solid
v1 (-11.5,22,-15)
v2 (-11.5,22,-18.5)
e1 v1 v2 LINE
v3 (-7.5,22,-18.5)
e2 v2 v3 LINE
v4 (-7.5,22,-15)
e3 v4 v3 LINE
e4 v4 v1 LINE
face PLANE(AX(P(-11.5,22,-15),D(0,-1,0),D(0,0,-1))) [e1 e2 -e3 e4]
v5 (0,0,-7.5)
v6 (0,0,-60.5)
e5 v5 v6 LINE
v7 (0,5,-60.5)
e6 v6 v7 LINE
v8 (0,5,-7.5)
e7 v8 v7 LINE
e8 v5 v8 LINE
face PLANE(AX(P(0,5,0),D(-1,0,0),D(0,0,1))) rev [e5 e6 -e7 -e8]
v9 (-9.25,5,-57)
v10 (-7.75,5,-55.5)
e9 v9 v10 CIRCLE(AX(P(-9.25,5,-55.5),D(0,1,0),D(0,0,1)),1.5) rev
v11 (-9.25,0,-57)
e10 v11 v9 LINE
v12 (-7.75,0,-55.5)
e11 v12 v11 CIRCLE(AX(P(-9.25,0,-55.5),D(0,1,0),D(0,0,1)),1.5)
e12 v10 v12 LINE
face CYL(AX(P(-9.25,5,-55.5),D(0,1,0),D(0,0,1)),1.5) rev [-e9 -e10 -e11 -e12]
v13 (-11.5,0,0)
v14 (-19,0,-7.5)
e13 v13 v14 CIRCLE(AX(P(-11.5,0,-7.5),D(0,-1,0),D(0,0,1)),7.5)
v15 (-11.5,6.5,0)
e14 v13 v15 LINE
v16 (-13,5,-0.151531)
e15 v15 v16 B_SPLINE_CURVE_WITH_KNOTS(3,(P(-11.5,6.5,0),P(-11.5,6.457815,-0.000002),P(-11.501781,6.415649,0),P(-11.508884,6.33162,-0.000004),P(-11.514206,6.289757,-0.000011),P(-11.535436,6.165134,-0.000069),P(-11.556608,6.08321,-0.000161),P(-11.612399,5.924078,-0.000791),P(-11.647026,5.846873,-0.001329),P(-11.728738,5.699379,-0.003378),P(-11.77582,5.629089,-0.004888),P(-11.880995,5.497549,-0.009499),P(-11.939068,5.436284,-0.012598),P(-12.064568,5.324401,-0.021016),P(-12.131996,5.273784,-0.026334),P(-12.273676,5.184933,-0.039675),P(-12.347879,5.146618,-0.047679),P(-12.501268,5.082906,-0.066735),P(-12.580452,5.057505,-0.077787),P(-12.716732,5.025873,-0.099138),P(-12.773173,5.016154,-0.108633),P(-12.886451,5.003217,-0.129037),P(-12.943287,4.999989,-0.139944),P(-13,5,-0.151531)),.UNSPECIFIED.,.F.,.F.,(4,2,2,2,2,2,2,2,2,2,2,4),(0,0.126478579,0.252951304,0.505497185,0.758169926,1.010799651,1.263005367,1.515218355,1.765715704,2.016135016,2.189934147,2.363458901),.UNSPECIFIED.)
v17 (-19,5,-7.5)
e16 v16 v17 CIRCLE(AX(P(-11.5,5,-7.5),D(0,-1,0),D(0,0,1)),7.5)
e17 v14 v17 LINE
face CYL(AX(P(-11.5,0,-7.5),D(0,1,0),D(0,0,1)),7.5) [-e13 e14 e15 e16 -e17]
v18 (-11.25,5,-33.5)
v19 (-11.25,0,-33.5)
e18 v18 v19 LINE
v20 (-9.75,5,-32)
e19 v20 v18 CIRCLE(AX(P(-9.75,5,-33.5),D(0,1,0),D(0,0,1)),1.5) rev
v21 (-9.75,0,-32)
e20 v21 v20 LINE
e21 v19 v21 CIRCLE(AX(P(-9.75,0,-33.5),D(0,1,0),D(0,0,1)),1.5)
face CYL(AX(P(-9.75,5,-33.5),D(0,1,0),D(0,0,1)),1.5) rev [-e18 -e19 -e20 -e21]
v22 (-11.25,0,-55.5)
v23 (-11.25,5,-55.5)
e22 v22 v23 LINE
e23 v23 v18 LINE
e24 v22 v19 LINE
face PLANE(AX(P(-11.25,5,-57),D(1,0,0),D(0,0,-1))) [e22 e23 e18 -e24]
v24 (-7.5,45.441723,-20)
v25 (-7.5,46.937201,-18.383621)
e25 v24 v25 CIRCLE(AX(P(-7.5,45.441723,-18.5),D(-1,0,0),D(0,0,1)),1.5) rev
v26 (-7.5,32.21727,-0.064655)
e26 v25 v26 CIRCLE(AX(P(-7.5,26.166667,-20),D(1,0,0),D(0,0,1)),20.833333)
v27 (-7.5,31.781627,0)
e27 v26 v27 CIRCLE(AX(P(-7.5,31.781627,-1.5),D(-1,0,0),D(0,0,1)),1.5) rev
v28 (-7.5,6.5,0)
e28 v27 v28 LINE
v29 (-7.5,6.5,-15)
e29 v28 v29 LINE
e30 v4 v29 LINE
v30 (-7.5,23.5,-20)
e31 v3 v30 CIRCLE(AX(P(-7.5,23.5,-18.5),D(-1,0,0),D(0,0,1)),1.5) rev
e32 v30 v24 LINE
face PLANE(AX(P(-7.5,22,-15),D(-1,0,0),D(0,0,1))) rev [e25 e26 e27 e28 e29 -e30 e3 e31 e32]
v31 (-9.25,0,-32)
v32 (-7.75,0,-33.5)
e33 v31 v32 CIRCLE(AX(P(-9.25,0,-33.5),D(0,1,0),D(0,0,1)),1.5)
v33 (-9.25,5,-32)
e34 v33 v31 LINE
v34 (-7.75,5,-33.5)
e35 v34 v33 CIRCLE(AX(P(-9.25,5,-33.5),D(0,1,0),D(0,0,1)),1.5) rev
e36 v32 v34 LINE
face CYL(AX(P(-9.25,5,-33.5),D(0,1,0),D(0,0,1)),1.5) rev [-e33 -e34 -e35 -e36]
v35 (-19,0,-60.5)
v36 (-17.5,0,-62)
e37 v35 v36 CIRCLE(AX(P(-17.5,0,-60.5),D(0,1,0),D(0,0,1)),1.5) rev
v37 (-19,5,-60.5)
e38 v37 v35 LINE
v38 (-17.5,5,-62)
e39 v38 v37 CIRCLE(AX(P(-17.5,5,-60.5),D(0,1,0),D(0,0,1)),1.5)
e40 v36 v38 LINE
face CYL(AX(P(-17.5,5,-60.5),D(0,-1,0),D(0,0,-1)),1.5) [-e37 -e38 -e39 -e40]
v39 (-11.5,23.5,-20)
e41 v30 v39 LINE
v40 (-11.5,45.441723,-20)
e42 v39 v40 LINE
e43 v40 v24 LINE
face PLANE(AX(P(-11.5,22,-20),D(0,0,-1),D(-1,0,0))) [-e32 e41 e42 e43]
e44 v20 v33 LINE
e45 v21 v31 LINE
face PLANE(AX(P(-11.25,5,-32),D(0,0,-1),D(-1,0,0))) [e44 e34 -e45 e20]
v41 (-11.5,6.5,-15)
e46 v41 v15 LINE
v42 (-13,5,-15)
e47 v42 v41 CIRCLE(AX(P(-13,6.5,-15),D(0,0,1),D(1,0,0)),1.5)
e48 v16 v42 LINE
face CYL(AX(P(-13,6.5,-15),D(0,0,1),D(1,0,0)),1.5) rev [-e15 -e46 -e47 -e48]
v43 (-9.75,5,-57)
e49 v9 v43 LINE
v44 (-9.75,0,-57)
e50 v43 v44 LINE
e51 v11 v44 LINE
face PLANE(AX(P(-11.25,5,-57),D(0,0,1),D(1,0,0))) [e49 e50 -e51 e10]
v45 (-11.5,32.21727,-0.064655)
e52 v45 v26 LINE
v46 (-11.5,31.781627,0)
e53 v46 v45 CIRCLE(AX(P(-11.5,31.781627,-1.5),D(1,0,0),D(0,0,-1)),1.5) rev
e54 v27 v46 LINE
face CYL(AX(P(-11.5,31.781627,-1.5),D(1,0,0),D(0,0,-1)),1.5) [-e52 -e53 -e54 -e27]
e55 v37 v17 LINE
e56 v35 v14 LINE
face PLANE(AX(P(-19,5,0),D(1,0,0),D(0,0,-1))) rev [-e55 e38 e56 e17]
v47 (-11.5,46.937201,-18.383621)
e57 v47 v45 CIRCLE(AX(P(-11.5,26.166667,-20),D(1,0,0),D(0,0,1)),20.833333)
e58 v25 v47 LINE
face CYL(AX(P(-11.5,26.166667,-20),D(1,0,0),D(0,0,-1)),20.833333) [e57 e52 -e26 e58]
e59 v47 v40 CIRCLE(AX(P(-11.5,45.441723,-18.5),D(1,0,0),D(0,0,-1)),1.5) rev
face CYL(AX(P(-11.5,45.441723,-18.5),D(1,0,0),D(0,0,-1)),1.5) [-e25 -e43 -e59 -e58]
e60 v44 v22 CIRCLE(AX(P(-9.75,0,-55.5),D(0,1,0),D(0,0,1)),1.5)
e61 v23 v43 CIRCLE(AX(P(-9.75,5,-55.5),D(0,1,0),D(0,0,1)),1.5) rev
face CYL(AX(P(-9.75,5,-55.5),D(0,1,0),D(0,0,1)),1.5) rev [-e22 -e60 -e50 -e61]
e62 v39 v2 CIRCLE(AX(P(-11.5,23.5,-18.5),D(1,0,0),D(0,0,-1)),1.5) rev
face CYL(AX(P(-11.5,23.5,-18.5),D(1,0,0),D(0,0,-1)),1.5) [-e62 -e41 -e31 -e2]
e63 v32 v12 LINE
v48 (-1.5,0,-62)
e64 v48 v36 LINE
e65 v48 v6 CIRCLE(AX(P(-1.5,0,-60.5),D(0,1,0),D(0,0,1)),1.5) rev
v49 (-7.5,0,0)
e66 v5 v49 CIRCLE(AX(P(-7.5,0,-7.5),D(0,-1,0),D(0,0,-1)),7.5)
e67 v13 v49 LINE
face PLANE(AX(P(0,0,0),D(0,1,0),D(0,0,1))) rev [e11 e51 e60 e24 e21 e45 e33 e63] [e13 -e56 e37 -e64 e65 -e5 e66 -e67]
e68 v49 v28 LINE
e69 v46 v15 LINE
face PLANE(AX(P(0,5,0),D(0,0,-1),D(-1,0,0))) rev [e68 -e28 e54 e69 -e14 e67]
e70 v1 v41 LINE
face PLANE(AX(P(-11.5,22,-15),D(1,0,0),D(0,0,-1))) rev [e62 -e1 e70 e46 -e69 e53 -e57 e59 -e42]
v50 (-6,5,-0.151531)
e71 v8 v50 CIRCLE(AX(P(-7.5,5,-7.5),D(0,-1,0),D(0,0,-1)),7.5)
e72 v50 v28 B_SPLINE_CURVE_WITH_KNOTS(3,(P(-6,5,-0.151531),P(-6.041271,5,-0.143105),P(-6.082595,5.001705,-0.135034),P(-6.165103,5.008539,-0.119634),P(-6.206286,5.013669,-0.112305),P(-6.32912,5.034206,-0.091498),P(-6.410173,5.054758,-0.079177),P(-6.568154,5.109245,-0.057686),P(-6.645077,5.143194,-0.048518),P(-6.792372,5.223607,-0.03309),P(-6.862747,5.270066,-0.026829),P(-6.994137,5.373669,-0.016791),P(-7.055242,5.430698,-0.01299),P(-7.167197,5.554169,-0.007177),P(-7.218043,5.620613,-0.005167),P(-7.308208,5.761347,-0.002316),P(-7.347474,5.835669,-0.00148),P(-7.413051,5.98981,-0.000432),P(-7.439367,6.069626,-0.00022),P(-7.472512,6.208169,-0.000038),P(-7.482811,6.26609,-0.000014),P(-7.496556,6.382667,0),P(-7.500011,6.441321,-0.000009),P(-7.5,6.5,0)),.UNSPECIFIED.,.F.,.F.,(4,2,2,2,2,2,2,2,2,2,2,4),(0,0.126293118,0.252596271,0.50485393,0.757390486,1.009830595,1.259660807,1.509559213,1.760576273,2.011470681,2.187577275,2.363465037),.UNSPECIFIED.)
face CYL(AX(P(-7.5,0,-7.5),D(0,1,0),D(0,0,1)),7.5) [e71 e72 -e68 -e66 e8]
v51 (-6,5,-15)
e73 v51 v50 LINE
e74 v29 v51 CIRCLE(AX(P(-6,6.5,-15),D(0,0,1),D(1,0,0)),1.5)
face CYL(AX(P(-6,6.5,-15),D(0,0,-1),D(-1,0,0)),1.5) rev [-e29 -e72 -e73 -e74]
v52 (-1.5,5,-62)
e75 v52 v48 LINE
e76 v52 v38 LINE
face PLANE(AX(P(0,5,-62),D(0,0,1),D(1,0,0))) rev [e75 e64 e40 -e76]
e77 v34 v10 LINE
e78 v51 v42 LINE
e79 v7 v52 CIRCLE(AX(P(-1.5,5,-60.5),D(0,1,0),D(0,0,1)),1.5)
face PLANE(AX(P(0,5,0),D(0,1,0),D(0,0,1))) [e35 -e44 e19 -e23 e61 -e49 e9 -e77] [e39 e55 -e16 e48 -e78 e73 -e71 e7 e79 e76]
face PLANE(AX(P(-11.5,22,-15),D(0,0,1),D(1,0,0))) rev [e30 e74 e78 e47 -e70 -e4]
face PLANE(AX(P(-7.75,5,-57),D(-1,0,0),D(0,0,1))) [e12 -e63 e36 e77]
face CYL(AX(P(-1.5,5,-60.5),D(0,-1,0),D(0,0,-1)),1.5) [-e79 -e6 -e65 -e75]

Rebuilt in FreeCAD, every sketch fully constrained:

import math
import FreeCAD as App
import Part
import Sketcher

V = App.Vector


def edges_at(feature, points):
    """Names of the edges that pass closest to the given points."""
    edges = feature.Shape.Edges
    near = lambda p: min(range(len(edges)), key=lambda i: edges[i].distToShape(Part.Vertex(*p))[0])
    return sorted({f"Edge{near(p) + 1}" for p in points})

doc = App.newDocument("Part")
body = doc.addObject("PartDesign::Body", "Body")

# Sketch on XZ plane
sketch1 = body.newObject("Sketcher::SketchObject", "Sketch")
sketch1.AttachmentSupport = (doc.getObject("XZ_Plane"), [""])
sketch1.MapMode = "FlatFace"
sketch1.addGeometry([
    Part.LineSegment(V(-19, -62, 0), V(-19, 0, 0)),  # 0
    Part.LineSegment(V(-19, 0, 0), V(0, 0, 0)),  # 1
    Part.LineSegment(V(0, 0, 0), V(0, -62, 0)),  # 2
    Part.LineSegment(V(0, -62, 0), V(-19, -62, 0)),  # 3
    Part.LineSegment(V(-7.75, -32, 0), V(-11.25, -32, 0)),  # 4
    Part.LineSegment(V(-11.25, -32, 0), V(-11.25, -57, 0)),  # 5
    Part.LineSegment(V(-11.25, -57, 0), V(-7.75, -57, 0)),  # 6
    Part.LineSegment(V(-7.75, -57, 0), V(-7.75, -32, 0)),  # 7
], False)
sketch1.addConstraint([
    Sketcher.Constraint("Coincident", 0, 2, 1, 1),
    Sketcher.Constraint("Coincident", 1, 2, 2, 1),
    Sketcher.Constraint("Coincident", 2, 2, 3, 1),
    Sketcher.Constraint("Coincident", 3, 2, 0, 1),
    Sketcher.Constraint("Coincident", 4, 2, 5, 1),
    Sketcher.Constraint("Coincident", 5, 2, 6, 1),
    Sketcher.Constraint("Coincident", 6, 2, 7, 1),
    Sketcher.Constraint("Coincident", 7, 2, 4, 1),
    Sketcher.Constraint("Vertical", 0),
    Sketcher.Constraint("Horizontal", 1),
    Sketcher.Constraint("Vertical", 2),
    Sketcher.Constraint("Horizontal", 3),
    Sketcher.Constraint("Horizontal", 4),
    Sketcher.Constraint("Vertical", 5),
    Sketcher.Constraint("Horizontal", 6),
    Sketcher.Constraint("Vertical", 7),
    Sketcher.Constraint("Coincident", 1, 2, -1, 1),
    Sketcher.Constraint("DistanceX", 1, 1, 1, 2, 19.0),
    Sketcher.Constraint("DistanceY", 0, 1, 0, 2, 62.0),
    Sketcher.Constraint("DistanceY", 5, 2, 5, 1, 25.0),
    Sketcher.Constraint("DistanceX", 4, 2, 4, 1, 3.5),
    Sketcher.Constraint("DistanceY", 4, 2, -1, 1, 32.0),
    Sketcher.Constraint("DistanceX", 4, 2, -1, 1, 11.25),
])
pad1 = body.newObject("PartDesign::Pad", "Pad")
pad1.Profile = sketch1
pad1.Length = 5
pad1.Reversed = True

# Sketch on XZ plane
sketch2 = body.newObject("Sketcher::SketchObject", "Sketch001")
sketch2.AttachmentSupport = (doc.getObject("XZ_Plane"), [""])
sketch2.MapMode = "FlatFace"
sketch2.AttachmentOffset = App.Placement(V(0, 0, -5), App.Rotation())
sketch2.addGeometry([
    Part.LineSegment(V(-11.5, -15, 0), V(-11.5, 0, 0)),
    Part.LineSegment(V(-11.5, 0, 0), V(-7.5, 0, 0)),
    Part.LineSegment(V(-7.5, 0, 0), V(-7.5, -15, 0)),
    Part.LineSegment(V(-7.5, -15, 0), V(-11.5, -15, 0)),
], False)
sketch2.addConstraint([
    Sketcher.Constraint("Coincident", 0, 2, 1, 1),
    Sketcher.Constraint("Coincident", 1, 2, 2, 1),
    Sketcher.Constraint("Coincident", 2, 2, 3, 1),
    Sketcher.Constraint("Coincident", 3, 2, 0, 1),
    Sketcher.Constraint("Vertical", 0),
    Sketcher.Constraint("Horizontal", 1),
    Sketcher.Constraint("Vertical", 2),
    Sketcher.Constraint("Horizontal", 3),
    Sketcher.Constraint("PointOnObject", 0, 2, -1),
    Sketcher.Constraint("DistanceX", 1, 1, 1, 2, 4.0),
    Sketcher.Constraint("DistanceY", 0, 1, 0, 2, 15.0),
    Sketcher.Constraint("DistanceX", 0, 2, -1, 1, 11.5),
])
pad2 = body.newObject("PartDesign::Pad", "Pad001")
pad2.Profile = sketch2
pad2.Length = 17
pad2.Reversed = True

# Sketch on YZ plane
sketch3 = body.newObject("Sketcher::SketchObject", "Sketch002")
sketch3.AttachmentSupport = (doc.getObject("YZ_Plane"), [""])
sketch3.MapMode = "FlatFace"
sketch3.AttachmentOffset = App.Placement(V(0, 0, -7.5), App.Rotation())
sketch3.addGeometry([
    Part.LineSegment(V(22, -20, 0), V(47, -20, 0)),
    Part.ArcOfCircle(Part.Circle(V(26.166667, -20, 0), V(0, 0, 1), 20.833333), math.radians(0), math.radians(73.739795)),
    Part.LineSegment(V(32, 0, 0), V(22, 0, 0)),
    Part.LineSegment(V(22, 0, 0), V(22, -20, 0)),
], False)
sketch3.addConstraint([
    Sketcher.Constraint("Coincident", 0, 2, 1, 1),
    Sketcher.Constraint("Coincident", 1, 2, 2, 1),
    Sketcher.Constraint("Coincident", 2, 2, 3, 1),
    Sketcher.Constraint("Coincident", 3, 2, 0, 1),
    Sketcher.Constraint("Horizontal", 0),
    Sketcher.Constraint("Horizontal", 2),
    Sketcher.Constraint("Vertical", 3),
    Sketcher.Constraint("PointOnObject", 1, 2, -1),
    Sketcher.Constraint("Horizontal", 1, 3, 0, 2),
    Sketcher.Constraint("DistanceX", 0, 1, 0, 2, 25.0),
    Sketcher.Constraint("DistanceX", 2, 2, 2, 1, 10.0),
    Sketcher.Constraint("DistanceY", 3, 2, 3, 1, 20.0),
    Sketcher.Constraint("DistanceX", -1, 1, 0, 2, 47.0),
])
pad3 = body.newObject("PartDesign::Pad", "Pad002")
pad3.Profile = sketch3
pad3.Length = 4
pad3.Reversed = True

# Sketch on XZ plane
sketch4 = body.newObject("Sketcher::SketchObject", "Sketch003")
sketch4.AttachmentSupport = (doc.getObject("XZ_Plane"), [""])
sketch4.MapMode = "FlatFace"
sketch4.AttachmentOffset = App.Placement(V(0, 0, -5), App.Rotation())
sketch4.addGeometry([
    Part.LineSegment(V(-19, -7.5, 0), V(-19, 0, 0)),  # 0
    Part.LineSegment(V(-19, 0, 0), V(-11.5, 0, 0)),  # 1
    Part.ArcOfCircle(Part.Circle(V(-11.5, -7.5, 0), V(0, 0, 1), 7.5), math.radians(90), math.radians(180)),  # 2
    Part.LineSegment(V(-7.5, 0, 0), V(0, 0, 0)),  # 3
    Part.LineSegment(V(0, 0, 0), V(0, -7.5, 0)),  # 4
    Part.ArcOfCircle(Part.Circle(V(-7.5, -7.5, 0), V(0, 0, 1), 7.5), math.radians(0), math.radians(90)),  # 5
], False)
sketch4.addConstraint([
    Sketcher.Constraint("Coincident", 0, 2, 1, 1),
    Sketcher.Constraint("Tangent", 1, 2, 2, 1),
    Sketcher.Constraint("Tangent", 2, 2, 0, 1),
    Sketcher.Constraint("Coincident", 3, 2, 4, 1),
    Sketcher.Constraint("Tangent", 4, 2, 5, 1),
    Sketcher.Constraint("Tangent", 5, 2, 3, 1),
    Sketcher.Constraint("Vertical", 0),
    Sketcher.Constraint("Horizontal", 1),
    Sketcher.Constraint("Horizontal", 3),
    Sketcher.Constraint("Vertical", 4),
    Sketcher.Constraint("Coincident", 3, 2, -1, 1),
    Sketcher.Constraint("Equal", 2, 5),
    Sketcher.Constraint("PointOnObject", 0, 2, -1),
    Sketcher.Constraint("Radius", 2, 7.5),
    Sketcher.Constraint("DistanceX", 0, 2, -1, 1, 19.0),
])
pocket1 = body.newObject("PartDesign::Pocket", "Pocket")
pocket1.Profile = sketch4
pocket1.Type = "ThroughAll"
pocket1.Reversed = True
doc.recompute()

fillet = body.newObject("PartDesign::Fillet", "Fillet")
fillet.Base = (pocket1, edges_at(pocket1, [
    (-11.25, 2.5, -57),
    (-11.25, 2.5, -32),
    (-7.75, 2.5, -32),
    (-7.75, 2.5, -57),
    (-11.5, 5, -7.5),
    (-7.5, 5, -7.5),
    (-9.5, 32, 0),
    (-9.5, 47, -20),
    (-9.5, 22, -20),
    (-19, 2.5, -62),
    (0, 2.5, -62),
]))
fillet.Radius = 1.5

doc.recompute()
